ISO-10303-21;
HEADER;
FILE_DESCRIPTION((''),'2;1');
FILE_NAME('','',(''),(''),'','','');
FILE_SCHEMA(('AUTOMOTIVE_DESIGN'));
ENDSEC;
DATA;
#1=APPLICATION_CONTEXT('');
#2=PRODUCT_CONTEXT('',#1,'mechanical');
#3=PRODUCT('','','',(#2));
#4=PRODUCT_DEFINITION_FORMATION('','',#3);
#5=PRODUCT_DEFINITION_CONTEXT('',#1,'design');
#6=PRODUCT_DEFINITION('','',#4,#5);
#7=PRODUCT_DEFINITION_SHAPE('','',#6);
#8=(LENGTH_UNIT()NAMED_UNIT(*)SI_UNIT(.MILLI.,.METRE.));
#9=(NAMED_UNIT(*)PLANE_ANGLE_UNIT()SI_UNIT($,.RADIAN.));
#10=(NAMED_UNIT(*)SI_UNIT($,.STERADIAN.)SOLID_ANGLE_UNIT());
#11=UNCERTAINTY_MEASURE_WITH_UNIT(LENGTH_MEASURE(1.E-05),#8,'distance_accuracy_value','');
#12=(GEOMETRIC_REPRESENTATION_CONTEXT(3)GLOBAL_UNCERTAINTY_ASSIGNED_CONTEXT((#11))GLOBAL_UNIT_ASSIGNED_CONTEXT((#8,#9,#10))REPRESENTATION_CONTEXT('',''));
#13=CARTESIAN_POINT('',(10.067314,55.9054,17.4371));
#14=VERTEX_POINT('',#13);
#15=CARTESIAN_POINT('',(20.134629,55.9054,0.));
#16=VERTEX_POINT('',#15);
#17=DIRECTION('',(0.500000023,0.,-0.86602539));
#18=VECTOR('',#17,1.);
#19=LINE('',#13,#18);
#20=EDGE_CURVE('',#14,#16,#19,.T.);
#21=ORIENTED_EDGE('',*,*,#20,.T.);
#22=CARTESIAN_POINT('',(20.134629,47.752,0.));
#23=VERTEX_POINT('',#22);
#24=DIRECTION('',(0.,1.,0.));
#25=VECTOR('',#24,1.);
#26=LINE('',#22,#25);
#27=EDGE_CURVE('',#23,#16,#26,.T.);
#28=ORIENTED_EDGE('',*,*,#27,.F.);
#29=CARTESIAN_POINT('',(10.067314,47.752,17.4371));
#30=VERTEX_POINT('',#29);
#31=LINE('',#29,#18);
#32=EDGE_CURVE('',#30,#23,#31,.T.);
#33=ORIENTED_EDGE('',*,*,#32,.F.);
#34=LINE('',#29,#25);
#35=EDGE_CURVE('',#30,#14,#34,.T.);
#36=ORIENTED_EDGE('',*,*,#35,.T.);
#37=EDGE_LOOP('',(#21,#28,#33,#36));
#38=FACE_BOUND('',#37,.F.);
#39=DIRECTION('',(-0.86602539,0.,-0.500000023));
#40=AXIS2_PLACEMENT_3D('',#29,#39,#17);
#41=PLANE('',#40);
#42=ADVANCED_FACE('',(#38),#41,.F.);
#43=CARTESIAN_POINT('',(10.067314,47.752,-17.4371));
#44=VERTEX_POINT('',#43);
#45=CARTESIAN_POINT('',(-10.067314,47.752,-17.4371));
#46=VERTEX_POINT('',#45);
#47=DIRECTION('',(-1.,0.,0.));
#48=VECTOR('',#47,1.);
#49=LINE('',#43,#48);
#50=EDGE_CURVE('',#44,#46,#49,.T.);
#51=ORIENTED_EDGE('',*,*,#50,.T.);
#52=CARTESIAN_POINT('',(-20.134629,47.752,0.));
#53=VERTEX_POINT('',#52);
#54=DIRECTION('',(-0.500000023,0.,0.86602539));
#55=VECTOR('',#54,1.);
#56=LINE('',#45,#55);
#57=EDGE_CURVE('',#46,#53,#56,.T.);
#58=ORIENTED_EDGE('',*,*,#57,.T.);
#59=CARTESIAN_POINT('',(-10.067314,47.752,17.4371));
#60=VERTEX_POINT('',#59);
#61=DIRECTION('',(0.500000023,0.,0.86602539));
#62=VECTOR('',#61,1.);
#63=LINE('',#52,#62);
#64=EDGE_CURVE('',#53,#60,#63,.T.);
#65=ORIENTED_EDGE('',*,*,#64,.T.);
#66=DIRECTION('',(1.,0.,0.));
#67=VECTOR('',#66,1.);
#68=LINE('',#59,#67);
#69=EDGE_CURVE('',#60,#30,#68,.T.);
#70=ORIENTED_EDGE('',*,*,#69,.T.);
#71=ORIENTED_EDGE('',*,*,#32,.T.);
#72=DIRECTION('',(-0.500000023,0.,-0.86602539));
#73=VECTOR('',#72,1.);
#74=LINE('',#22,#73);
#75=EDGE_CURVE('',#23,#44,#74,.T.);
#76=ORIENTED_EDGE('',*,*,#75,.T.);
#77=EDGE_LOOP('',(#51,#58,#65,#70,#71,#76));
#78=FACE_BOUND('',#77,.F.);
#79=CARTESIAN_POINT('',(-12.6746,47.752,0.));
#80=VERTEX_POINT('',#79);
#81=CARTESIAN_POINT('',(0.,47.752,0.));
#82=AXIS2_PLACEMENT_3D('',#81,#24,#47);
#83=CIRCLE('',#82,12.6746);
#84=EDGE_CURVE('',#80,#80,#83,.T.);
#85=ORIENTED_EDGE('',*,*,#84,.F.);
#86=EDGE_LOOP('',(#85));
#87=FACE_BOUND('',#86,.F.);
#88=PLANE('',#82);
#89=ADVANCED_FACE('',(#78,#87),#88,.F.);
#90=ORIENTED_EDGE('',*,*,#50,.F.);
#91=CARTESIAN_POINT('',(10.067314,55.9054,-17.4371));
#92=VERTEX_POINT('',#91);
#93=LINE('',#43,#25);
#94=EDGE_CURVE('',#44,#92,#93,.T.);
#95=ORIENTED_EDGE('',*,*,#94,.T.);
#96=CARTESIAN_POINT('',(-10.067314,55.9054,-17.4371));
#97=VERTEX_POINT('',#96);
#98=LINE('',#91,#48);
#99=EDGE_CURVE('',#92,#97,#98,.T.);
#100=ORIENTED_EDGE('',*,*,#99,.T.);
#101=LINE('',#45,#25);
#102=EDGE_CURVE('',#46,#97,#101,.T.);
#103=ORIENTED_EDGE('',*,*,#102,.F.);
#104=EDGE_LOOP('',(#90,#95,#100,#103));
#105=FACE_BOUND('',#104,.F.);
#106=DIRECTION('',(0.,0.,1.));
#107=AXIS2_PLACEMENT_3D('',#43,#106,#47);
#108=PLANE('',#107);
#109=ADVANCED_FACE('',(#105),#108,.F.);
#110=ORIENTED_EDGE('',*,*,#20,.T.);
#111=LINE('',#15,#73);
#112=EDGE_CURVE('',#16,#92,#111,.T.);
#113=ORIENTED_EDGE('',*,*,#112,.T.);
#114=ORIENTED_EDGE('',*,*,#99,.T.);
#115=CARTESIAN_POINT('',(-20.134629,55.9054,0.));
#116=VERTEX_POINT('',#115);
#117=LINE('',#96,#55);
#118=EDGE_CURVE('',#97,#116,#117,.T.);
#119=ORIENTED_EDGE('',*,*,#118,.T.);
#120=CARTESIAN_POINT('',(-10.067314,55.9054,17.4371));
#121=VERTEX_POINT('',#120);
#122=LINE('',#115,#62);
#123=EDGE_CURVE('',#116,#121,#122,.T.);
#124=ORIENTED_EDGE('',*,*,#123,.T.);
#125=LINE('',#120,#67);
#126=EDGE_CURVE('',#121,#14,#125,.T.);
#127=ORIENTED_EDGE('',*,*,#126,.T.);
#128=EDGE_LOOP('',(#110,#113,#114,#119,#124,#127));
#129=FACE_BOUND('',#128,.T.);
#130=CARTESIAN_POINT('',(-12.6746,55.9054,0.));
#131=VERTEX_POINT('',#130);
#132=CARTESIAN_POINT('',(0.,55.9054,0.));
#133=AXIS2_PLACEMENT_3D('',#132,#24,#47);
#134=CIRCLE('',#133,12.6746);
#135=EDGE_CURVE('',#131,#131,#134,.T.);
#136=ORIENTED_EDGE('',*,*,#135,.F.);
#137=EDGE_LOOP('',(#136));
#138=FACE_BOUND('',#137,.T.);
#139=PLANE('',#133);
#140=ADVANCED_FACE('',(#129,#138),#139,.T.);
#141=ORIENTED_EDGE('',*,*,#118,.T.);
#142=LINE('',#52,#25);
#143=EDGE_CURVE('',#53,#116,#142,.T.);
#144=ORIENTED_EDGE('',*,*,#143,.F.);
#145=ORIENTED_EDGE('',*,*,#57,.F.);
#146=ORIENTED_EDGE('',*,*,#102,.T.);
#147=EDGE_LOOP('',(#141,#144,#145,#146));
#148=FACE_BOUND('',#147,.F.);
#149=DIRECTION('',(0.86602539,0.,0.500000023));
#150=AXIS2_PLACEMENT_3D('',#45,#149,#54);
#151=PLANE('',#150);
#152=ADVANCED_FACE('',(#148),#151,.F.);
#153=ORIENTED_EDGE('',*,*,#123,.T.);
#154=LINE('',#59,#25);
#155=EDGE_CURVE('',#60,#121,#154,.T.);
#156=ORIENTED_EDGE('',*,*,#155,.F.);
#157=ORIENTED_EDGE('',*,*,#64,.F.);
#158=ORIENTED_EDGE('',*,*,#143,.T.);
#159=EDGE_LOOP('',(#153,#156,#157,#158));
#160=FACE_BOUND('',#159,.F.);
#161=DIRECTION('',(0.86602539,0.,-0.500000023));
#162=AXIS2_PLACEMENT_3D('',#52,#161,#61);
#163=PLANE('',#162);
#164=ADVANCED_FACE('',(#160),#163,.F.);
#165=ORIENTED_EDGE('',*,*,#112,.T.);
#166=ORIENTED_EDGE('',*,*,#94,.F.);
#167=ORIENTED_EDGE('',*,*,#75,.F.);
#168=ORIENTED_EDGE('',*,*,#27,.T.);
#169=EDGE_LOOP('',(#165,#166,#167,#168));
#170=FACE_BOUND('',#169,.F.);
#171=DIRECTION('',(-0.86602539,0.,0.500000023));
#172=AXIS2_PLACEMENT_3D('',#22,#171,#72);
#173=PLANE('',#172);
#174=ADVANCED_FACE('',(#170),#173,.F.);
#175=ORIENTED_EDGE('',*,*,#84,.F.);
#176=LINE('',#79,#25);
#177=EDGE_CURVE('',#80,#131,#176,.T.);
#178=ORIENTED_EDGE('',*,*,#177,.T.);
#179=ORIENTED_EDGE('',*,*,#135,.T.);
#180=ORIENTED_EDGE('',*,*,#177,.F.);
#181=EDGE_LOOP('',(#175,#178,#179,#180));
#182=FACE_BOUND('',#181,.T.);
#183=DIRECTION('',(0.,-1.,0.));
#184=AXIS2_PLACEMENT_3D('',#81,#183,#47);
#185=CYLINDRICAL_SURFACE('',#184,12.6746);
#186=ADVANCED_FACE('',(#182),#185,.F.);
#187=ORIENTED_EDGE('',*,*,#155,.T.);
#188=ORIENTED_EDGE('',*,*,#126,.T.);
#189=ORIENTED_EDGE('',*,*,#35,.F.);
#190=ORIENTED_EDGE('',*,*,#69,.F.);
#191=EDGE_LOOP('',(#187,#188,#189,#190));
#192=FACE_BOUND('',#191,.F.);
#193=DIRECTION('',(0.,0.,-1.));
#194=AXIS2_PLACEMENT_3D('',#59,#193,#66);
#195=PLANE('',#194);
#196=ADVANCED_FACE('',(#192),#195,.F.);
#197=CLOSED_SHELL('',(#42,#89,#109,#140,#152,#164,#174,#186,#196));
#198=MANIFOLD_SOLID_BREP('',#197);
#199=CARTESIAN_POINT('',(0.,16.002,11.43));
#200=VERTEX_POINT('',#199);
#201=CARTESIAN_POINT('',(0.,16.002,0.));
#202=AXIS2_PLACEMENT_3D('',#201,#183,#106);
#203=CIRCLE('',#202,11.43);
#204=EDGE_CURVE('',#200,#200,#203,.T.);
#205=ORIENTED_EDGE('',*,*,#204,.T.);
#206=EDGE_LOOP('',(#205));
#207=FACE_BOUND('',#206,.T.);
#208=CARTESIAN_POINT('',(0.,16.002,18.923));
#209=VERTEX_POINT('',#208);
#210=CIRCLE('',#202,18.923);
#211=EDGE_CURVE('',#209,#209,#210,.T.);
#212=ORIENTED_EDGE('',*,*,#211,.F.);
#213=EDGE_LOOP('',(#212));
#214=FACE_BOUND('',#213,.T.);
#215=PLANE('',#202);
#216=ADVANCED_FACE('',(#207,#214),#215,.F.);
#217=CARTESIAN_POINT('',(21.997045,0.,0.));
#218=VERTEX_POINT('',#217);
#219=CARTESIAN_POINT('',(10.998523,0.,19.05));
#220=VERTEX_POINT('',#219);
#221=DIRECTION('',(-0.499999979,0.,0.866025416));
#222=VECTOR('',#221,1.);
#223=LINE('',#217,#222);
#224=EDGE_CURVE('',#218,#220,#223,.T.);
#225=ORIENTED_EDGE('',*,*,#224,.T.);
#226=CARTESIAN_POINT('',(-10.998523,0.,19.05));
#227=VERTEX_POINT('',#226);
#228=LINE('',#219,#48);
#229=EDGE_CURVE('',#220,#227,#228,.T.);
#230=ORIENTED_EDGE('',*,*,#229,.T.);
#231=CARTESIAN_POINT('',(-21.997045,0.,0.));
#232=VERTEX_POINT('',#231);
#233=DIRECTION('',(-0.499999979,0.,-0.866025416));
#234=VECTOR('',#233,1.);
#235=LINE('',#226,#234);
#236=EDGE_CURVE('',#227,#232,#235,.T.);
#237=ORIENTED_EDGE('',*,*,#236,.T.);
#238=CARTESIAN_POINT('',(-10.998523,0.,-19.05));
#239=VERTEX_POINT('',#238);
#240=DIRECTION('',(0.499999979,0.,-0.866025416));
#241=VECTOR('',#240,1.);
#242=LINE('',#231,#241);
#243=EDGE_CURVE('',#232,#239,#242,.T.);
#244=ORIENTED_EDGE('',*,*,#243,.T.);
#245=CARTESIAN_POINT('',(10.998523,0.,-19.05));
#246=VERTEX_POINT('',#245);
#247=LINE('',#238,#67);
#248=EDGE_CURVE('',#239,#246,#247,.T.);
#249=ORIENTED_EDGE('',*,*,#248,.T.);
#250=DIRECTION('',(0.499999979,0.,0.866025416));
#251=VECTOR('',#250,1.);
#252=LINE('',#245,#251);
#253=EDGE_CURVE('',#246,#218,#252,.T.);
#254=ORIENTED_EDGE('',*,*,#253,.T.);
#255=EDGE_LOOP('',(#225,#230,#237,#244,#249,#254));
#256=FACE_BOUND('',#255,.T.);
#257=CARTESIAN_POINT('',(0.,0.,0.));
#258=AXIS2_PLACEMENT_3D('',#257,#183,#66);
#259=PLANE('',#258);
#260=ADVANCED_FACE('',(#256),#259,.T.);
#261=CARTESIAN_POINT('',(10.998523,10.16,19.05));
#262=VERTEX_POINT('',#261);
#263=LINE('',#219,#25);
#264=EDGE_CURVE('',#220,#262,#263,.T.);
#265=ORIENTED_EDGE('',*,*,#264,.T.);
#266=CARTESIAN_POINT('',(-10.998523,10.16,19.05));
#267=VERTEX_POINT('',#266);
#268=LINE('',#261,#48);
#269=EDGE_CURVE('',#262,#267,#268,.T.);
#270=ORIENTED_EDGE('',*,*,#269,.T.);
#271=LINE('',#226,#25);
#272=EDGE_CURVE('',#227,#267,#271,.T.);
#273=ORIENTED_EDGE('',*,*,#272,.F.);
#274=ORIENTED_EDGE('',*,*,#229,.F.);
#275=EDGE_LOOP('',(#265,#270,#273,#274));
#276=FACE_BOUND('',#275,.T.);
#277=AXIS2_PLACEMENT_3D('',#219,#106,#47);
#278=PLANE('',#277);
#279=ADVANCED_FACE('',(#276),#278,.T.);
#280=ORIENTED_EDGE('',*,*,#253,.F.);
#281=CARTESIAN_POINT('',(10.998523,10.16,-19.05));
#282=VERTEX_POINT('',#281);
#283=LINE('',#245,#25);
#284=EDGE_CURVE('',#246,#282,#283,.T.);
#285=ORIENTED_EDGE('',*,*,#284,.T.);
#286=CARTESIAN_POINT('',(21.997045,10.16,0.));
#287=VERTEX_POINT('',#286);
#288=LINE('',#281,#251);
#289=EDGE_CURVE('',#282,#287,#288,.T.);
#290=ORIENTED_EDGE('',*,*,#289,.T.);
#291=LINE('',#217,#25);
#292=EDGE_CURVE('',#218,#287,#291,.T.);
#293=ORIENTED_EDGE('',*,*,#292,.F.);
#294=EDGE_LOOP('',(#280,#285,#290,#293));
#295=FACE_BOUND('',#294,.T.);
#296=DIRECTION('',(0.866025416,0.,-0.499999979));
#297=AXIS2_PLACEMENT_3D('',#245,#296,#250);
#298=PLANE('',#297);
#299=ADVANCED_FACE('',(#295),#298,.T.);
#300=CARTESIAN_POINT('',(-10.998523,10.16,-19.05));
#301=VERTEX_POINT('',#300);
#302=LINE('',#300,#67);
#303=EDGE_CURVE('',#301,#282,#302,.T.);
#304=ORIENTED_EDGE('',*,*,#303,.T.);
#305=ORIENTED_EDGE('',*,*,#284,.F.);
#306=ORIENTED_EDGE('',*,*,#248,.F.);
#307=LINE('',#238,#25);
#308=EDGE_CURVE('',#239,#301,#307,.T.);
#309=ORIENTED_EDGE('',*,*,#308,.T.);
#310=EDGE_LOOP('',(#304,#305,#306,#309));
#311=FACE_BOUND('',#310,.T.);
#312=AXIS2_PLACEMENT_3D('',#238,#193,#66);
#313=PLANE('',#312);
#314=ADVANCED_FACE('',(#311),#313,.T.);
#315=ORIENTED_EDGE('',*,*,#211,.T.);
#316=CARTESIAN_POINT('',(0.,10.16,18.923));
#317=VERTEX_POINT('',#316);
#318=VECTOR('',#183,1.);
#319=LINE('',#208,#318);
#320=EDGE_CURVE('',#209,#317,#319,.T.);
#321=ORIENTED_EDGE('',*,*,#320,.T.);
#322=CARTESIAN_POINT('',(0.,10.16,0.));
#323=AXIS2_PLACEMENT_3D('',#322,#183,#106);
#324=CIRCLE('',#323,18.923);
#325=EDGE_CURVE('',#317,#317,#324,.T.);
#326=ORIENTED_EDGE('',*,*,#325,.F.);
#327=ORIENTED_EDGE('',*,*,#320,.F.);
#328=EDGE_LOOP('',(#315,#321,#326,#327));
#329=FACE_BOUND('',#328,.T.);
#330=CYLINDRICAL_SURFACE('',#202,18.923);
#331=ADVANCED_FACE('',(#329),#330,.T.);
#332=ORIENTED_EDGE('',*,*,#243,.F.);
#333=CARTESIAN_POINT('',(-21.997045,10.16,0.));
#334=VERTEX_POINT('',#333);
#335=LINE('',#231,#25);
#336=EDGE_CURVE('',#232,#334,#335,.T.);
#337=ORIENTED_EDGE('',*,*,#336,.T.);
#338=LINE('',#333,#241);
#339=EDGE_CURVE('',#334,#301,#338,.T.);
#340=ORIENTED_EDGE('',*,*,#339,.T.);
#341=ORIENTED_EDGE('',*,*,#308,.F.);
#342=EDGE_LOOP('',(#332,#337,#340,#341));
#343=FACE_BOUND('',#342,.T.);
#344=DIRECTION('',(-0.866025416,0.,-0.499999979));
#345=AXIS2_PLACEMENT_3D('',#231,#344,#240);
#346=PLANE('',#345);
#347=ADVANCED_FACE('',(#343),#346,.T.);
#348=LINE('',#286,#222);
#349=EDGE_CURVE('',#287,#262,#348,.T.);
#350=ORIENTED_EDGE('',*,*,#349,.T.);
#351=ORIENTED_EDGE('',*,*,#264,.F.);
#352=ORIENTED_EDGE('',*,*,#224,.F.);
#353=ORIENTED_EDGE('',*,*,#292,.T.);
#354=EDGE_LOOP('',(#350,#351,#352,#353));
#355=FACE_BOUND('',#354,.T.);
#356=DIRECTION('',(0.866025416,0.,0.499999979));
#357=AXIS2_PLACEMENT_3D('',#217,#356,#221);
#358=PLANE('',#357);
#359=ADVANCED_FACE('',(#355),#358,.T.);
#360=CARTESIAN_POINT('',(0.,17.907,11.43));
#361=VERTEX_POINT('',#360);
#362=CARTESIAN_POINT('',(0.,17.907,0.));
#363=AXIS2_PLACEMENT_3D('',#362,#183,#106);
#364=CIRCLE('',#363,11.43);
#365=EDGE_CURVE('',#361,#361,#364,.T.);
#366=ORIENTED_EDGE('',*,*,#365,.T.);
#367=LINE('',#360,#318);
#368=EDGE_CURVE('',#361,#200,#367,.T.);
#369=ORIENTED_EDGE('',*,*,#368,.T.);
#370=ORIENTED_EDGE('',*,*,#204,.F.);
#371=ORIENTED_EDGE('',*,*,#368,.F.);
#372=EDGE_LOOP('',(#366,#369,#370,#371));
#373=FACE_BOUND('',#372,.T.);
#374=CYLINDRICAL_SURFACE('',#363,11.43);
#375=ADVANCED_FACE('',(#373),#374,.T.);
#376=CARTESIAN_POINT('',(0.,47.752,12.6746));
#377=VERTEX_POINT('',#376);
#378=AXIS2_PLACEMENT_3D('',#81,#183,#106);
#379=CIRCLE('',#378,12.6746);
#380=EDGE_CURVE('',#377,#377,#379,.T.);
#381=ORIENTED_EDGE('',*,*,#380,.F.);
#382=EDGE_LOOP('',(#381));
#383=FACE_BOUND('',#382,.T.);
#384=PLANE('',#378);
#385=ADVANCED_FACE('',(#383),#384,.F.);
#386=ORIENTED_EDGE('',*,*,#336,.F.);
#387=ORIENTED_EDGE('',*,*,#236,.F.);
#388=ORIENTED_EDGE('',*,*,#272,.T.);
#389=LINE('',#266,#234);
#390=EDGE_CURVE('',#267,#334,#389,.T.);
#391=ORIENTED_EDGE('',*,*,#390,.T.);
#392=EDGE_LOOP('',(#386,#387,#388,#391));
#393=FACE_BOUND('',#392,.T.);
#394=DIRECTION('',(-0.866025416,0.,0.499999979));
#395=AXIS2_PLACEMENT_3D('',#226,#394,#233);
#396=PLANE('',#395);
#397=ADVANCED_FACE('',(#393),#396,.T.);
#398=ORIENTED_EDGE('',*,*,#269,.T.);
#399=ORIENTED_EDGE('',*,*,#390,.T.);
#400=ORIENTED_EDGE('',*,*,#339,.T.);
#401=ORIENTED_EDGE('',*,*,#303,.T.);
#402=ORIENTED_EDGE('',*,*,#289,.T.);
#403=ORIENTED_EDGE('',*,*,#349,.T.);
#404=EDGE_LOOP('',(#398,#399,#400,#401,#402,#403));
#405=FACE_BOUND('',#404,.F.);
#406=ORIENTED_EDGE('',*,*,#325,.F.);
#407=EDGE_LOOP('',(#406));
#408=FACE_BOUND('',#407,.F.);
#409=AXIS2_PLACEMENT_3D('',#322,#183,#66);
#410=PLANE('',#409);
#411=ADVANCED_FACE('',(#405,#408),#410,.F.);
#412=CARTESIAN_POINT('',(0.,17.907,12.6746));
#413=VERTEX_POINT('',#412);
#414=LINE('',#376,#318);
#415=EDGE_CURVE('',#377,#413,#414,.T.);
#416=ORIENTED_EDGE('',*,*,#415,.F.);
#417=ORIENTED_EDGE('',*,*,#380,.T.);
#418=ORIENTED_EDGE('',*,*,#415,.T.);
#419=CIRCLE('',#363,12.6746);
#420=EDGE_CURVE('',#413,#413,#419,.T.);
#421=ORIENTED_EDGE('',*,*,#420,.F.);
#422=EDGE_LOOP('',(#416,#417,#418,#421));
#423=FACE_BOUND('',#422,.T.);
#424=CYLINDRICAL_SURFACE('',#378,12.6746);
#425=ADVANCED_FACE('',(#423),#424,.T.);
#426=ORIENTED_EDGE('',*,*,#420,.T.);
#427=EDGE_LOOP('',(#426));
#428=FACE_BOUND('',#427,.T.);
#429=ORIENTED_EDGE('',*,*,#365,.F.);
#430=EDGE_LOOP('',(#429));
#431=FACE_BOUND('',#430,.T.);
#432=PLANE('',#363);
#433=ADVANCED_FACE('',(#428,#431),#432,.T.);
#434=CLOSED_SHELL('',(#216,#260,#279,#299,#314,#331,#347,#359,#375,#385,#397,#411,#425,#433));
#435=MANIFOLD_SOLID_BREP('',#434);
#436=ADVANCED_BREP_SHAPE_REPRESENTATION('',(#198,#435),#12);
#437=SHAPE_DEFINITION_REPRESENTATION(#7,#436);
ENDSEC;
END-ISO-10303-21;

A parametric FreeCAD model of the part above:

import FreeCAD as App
import Part
import Sketcher
from FreeCAD import Vector
Q = App.Units.Quantity


def add_polygon(sketch, points):
    """Adds a closed chain of lines whose ends are joined by coincident constraints."""
    first, n = sketch.GeometryCount, len(points)
    for a, b in zip(points, points[1:] + points[:1]):
        sketch.addGeometry(Part.LineSegment(App.Vector(*a, 0), App.Vector(*b, 0)), False)
    for i in range(n):
        sketch.addConstraint(Sketcher.Constraint("Coincident", first + i, 2, first + (i + 1) % n, 1))

doc = App.newDocument("Part")
params = doc.addObject("Spreadsheet::Sheet", "Params")
for row, (alias, value) in enumerate([
    ("sketch1_width", "1.88 in"),
    ("sketch1_width2", "0.63 in"),
    ("sketch1_width3", "1.175 in"),
    ("sketch1_height", "0.745 in"),
    ("sketch1_height2", "0.499 in"),
    ("revolution_angle", "360 deg"),
    ("sketch2_diameter", "1.49 in"),
    ("pad1_length", "0.4 in"),
    ("sketch3_diameter", "0.998 in"),
    ("pad2_length", "0.321 in"),
], start=1):
    params.set(f"A{row}", alias)
    params.set(f"B{row}", "=" + value)
    params.setAlias(f"B{row}", alias)

body = doc.addObject("PartDesign::Body", "Body")

# Sketch on YZ plane
sketch1 = body.newObject("Sketcher::SketchObject", "Sketch")
sketch1.AttachmentSupport = (doc.getObject("YZ_Plane"), [""])
sketch1.MapMode = "FlatFace"
add_polygon(sketch1, [(0, 18.9), (0, 0), (47.8, 0), (47.8, 12.7), (17.9, 12.7), (17.9, 11.4), (16, 11.4), (16, 18.9)])  # lines 0-7
sketch1.addConstraint(Sketcher.Constraint("Vertical", 0))
sketch1.addConstraint(Sketcher.Constraint("Horizontal", 1))
sketch1.addConstraint(Sketcher.Constraint("Vertical", 2))
sketch1.addConstraint(Sketcher.Constraint("Horizontal", 3))
sketch1.addConstraint(Sketcher.Constraint("Vertical", 4))
sketch1.addConstraint(Sketcher.Constraint("Horizontal", 5))
sketch1.addConstraint(Sketcher.Constraint("Vertical", 6))
sketch1.addConstraint(Sketcher.Constraint("Horizontal", 7))
sketch1.addConstraint(Sketcher.Constraint("Coincident", 0, 2, -1, 1))
sketch1.addConstraint(Sketcher.Constraint("DistanceX", 1, 1, 1, 2, Q("1.88 in")))
sketch1.addConstraint(Sketcher.Constraint("DistanceX", 7, 2, 7, 1, Q("0.63 in")))
sketch1.addConstraint(Sketcher.Constraint("DistanceX", 3, 2, 3, 1, Q("1.175 in")))
sketch1.addConstraint(Sketcher.Constraint("DistanceY", 0, 2, 0, 1, Q("0.745 in")))
sketch1.addConstraint(Sketcher.Constraint("DistanceY", 2, 1, 2, 2, Q("0.499 in")))
sketch1.addConstraint(Sketcher.Constraint("DistanceY", 4, 2, 4, 1, Q("0.049 in")))
sketch1.setExpression("Constraints[17]", "Params.sketch1_width")
sketch1.setExpression("Constraints[18]", "Params.sketch1_width2")
sketch1.setExpression("Constraints[19]", "Params.sketch1_width3")
sketch1.setExpression("Constraints[20]", "Params.sketch1_height")
sketch1.setExpression("Constraints[21]", "Params.sketch1_height2")
revolution = body.newObject("PartDesign::Revolution", "Revolution")
revolution.Profile = sketch1
revolution.ReferenceAxis = (sketch1, ["H_Axis"])
revolution.setExpression("Angle", "Params.revolution_angle")

# Sketch on XZ plane
sketch2 = body.newObject("Sketcher::SketchObject", "Sketch001")
sketch2.AttachmentSupport = (doc.getObject("XZ_Plane"), [""])
sketch2.MapMode = "FlatFace"
add_polygon(sketch2, [(-11, -19), (11, -19), (22, 0), (11, 19), (-11, 19), (-22, 0)])  # lines 0-5
sketch2.addGeometry(Part.Circle(Vector(0, 0, 0), Vector(0, 0, 1), 19), False)  # 6
sketch2.addConstraint(Sketcher.Constraint("Horizontal", 0))
sketch2.addConstraint(Sketcher.Constraint("Horizontal", 3))
sketch2.addConstraint(Sketcher.Constraint("Coincident", 6, 3, -1, 1))
sketch2.addConstraint(Sketcher.Constraint("Symmetric", 0, 2, 3, 2, -1, 1))
sketch2.addConstraint(Sketcher.Constraint("Symmetric", 1, 2, 4, 2, -1, 1))
sketch2.addConstraint(Sketcher.Constraint("PointOnObject", 1, 2, -1))
sketch2.addConstraint(Sketcher.Constraint("Parallel", 2, 5))
sketch2.addConstraint(Sketcher.Constraint("Vertical", 0, 2, 2, 2))
sketch2.addConstraint(Sketcher.Constraint("Diameter", 6, Q("1.49 in")))
sketch2.addConstraint(Sketcher.Constraint("Angle", 1, Q("60.000001 deg")))
sketch2.addConstraint(Sketcher.Constraint("DistanceY", 0, 2, 2, 2, Q("1.5 in")))
sketch2.addConstraint(Sketcher.Constraint("DistanceX", 0, 1, 0, 2, 21.997046))
sketch2.setExpression("Constraints[14]", "Params.sketch2_diameter")
pad1 = body.newObject("PartDesign::Pad", "Pad")
pad1.Profile = sketch2
pad1.setExpression("Length", "Params.pad1_length")
pad1.Reversed = True
body2 = doc.addObject("PartDesign::Body", "Body001")

# Sketch on XZ plane
sketch3 = body2.newObject("Sketcher::SketchObject", "Sketch002")
sketch3.AttachmentSupport = (doc.getObject("XZ_Plane001"), [""])
sketch3.MapMode = "FlatFace"
sketch3.AttachmentOffset = App.Placement(Vector(0, 0, -1.88 * 25.4), App.Rotation())
add_polygon(sketch3, [(-10, 17), (10, 17), (20, 0), (10, -17), (-10, -17), (-20, 0)])  # lines 0-5
sketch3.addGeometry(Part.Circle(Vector(0, 0, 0), Vector(0, 0, 1), 13), False)  # 6
sketch3.addConstraint(Sketcher.Constraint("Horizontal", 0))
sketch3.addConstraint(Sketcher.Constraint("Horizontal", 3))
sketch3.addConstraint(Sketcher.Constraint("Coincident", 6, 3, -1, 1))
sketch3.addConstraint(Sketcher.Constraint("Symmetric", 0, 2, 3, 2, -1, 1))
sketch3.addConstraint(Sketcher.Constraint("Symmetric", 1, 2, 4, 2, -1, 1))
sketch3.addConstraint(Sketcher.Constraint("PointOnObject", 1, 2, -1))
sketch3.addConstraint(Sketcher.Constraint("Parallel", 2, 5))
sketch3.addConstraint(Sketcher.Constraint("Vertical", 0, 2, 2, 2))
sketch3.addConstraint(Sketcher.Constraint("Diameter", 6, Q("0.998 in")))
sketch3.addConstraint(Sketcher.Constraint("Angle", 1, Q("-59.999998 deg")))
sketch3.addConstraint(Sketcher.Constraint("DistanceY", 2, 2, 0, 2, Q("1.373 in")))
sketch3.addConstraint(Sketcher.Constraint("DistanceX", 0, 1, 0, 2, 20.134628))
sketch3.setExpression("Constraints[14]", "Params.sketch3_diameter")
pad2 = body2.newObject("PartDesign::Pad", "Pad001")
pad2.Profile = sketch3
pad2.setExpression("Length", "Params.pad2_length")
pad2.Reversed = True

doc.recompute()
